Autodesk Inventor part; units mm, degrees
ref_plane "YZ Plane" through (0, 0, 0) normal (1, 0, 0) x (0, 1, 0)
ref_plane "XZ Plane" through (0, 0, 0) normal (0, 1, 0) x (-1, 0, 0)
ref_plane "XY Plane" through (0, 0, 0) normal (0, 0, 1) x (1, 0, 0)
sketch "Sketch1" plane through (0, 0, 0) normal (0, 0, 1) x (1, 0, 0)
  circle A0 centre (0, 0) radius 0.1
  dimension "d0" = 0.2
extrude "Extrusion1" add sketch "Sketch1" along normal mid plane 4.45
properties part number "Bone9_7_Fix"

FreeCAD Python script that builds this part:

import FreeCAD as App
import Part
import Sketcher
from FreeCAD import Vector
Q = App.Units.Quantity

doc = App.newDocument("Part")
body = doc.addObject("PartDesign::Body", "Body")

# Sketch on XY plane
sketch1 = body.newObject("Sketcher::SketchObject", "Sketch")
sketch1.AttachmentSupport = (doc.getObject("XY_Plane"), [""])
sketch1.MapMode = "FlatFace"
sketch1.addGeometry(Part.Circle(Vector(0, 0, 0), Vector(0, 0, 1), 0.1), False)
sketch1.addConstraint([
    Sketcher.Constraint("Coincident", 0, 3, -1, 1),
    Sketcher.Constraint("Diameter", 0, Q("0.2 mm")),
])
pad1 = body.newObject("PartDesign::Pad", "Pad")
pad1.Profile = sketch1
pad1.Length = 4.45
pad1.Midplane = True

doc.recompute()
